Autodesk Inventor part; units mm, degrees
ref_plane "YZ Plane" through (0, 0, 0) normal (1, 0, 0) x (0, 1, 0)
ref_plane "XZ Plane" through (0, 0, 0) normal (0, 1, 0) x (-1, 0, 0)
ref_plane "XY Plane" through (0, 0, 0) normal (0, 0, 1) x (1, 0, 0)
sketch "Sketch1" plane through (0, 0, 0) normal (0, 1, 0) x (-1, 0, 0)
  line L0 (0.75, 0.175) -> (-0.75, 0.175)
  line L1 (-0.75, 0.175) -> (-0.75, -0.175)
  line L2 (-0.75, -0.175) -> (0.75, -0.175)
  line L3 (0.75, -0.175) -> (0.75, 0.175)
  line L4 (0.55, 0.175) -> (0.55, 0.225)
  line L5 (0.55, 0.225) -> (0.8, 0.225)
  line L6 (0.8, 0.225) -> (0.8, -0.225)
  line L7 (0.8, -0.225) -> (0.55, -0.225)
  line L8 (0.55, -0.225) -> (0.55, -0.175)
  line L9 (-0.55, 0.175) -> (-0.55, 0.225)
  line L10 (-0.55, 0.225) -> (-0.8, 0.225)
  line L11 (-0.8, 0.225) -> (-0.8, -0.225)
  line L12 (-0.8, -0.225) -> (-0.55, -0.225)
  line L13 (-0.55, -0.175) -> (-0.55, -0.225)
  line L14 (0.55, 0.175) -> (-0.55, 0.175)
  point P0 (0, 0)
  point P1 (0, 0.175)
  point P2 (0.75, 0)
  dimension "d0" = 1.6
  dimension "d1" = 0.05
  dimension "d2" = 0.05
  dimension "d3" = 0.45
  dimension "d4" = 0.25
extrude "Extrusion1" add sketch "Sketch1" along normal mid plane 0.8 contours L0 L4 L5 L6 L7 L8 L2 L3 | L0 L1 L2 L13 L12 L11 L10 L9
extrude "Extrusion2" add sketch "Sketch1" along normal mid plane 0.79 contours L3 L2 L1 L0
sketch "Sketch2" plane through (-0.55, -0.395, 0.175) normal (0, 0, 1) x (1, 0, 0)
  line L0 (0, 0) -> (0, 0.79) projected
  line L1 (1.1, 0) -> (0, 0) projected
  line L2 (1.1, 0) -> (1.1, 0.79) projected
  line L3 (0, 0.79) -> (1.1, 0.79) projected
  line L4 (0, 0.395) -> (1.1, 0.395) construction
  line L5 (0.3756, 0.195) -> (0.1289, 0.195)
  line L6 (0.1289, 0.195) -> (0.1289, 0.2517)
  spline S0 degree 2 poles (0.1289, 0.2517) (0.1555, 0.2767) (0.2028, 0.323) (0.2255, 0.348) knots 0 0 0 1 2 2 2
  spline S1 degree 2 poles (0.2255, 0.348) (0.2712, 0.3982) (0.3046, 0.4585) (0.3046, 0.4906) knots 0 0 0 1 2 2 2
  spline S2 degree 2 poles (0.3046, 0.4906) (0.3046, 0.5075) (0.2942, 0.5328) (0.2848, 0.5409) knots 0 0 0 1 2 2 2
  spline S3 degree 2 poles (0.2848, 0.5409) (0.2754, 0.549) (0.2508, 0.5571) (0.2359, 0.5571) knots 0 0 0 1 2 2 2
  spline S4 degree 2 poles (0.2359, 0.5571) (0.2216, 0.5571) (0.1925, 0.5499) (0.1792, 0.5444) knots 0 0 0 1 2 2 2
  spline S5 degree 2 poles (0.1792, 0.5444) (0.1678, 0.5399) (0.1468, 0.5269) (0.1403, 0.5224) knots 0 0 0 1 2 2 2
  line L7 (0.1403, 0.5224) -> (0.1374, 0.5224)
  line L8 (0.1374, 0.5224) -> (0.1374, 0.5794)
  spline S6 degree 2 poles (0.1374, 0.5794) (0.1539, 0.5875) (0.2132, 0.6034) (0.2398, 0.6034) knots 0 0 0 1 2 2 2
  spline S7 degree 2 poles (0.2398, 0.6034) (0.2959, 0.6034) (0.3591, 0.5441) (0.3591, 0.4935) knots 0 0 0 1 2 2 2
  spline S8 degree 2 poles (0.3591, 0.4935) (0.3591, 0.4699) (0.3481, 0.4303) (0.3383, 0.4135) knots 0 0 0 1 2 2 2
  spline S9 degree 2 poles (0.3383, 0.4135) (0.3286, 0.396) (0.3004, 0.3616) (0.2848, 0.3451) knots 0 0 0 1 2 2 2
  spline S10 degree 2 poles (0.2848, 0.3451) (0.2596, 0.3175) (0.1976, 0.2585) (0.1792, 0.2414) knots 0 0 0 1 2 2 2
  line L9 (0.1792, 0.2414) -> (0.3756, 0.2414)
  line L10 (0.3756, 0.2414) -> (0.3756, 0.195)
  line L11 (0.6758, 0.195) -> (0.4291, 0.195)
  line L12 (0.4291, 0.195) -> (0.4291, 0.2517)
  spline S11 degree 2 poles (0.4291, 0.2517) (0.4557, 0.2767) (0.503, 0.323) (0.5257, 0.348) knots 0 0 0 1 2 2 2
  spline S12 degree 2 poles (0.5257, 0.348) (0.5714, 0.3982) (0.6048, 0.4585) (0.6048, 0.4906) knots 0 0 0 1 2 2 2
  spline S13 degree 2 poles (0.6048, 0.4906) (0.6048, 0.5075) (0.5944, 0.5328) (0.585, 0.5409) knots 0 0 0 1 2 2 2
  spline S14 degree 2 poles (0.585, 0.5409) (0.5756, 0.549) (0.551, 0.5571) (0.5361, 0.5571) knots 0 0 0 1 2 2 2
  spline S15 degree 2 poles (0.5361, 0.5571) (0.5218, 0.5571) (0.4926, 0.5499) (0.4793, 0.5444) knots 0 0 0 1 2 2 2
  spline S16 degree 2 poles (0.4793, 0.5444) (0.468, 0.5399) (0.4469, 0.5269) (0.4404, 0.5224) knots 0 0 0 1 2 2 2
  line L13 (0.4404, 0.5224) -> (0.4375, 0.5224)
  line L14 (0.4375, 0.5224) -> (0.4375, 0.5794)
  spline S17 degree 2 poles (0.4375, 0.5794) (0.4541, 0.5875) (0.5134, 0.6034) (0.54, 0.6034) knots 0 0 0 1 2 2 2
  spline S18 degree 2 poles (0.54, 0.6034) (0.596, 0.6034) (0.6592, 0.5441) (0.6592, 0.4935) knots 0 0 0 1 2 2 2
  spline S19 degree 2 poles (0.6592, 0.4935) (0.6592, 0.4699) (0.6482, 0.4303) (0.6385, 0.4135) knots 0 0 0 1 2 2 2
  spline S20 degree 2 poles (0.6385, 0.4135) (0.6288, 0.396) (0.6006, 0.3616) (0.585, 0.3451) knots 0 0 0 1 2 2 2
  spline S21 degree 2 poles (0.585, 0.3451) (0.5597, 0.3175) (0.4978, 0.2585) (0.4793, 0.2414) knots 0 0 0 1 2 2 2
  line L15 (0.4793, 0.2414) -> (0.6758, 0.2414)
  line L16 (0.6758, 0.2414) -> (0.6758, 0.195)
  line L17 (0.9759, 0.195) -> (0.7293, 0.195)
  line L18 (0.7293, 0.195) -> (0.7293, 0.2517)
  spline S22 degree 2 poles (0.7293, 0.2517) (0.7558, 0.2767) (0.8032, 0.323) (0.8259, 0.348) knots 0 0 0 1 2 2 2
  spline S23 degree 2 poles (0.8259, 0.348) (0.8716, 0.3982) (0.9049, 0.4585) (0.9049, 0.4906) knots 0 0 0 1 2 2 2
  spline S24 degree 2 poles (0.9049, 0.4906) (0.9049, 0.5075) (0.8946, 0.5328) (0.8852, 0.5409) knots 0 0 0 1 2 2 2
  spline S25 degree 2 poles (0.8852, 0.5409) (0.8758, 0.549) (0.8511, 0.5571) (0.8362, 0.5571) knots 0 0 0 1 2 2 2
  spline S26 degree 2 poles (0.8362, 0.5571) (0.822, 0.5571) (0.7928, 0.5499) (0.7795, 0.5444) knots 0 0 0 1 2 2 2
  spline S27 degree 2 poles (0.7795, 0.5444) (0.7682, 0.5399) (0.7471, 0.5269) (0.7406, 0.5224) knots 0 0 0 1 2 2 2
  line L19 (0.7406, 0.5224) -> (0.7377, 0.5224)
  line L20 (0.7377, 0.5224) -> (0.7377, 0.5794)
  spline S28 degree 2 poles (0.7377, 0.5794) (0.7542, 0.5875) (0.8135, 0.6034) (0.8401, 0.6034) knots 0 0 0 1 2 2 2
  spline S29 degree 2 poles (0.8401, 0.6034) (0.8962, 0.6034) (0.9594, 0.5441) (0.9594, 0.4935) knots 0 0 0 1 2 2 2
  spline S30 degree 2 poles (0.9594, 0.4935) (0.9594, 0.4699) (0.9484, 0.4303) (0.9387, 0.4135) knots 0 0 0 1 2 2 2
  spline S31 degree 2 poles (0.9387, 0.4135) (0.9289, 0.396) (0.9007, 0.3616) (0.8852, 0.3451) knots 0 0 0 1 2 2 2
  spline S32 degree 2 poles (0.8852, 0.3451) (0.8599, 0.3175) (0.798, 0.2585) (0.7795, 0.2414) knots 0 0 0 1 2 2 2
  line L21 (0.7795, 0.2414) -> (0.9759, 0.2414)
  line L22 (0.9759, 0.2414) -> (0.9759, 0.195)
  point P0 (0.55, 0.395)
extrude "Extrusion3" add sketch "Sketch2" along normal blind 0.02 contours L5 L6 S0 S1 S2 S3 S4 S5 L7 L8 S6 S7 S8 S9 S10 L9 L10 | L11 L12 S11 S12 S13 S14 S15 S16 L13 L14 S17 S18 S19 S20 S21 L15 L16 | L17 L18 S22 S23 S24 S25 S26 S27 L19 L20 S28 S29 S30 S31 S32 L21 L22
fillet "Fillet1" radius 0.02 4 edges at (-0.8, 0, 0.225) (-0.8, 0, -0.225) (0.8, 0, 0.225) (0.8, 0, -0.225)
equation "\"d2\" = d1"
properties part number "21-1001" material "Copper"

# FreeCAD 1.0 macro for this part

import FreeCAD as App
import Part
import Sketcher
from FreeCAD import Vector


def edges_at(feature, points):
    """Names of the edges that pass closest to the given points."""
    edges = feature.Shape.Edges
    near = lambda p: min(range(len(edges)), key=lambda i: edges[i].distToShape(Part.Vertex(*p))[0])
    return sorted({f"Edge{near(p) + 1}" for p in points})


def add_polygon(sketch, points):
    """Adds a closed chain of lines whose ends are joined by coincident constraints."""
    first, n = sketch.GeometryCount, len(points)
    for a, b in zip(points, points[1:] + points[:1]):
        sketch.addGeometry(Part.LineSegment(App.Vector(*a, 0), App.Vector(*b, 0)), False)
    for i in range(n):
        sketch.addConstraint(Sketcher.Constraint("Coincident", first + i, 2, first + (i + 1) % n, 1))

doc = App.newDocument("Part")
body = doc.addObject("PartDesign::Body", "Body")
body.AllowCompound = True

# Sketch on XZ plane
sketch1 = body.newObject("Sketcher::SketchObject", "Sketch")
sketch1.AttachmentSupport = (doc.getObject("XZ_Plane"), [""])
sketch1.MapMode = "FlatFace"
add_polygon(sketch1, [(-0.55, 0.17), (-0.75, 0.17), (-0.75, -0.17), (-0.55, -0.17), (-0.55, -0.23), (-0.8, -0.23), (-0.8, 0.23), (-0.55, 0.23)])  # lines 0-7
add_polygon(sketch1, [(0.75, 0.17), (0.55, 0.17), (0.55, 0.23), (0.8, 0.23), (0.8, -0.23), (0.55, -0.23), (0.55, -0.17), (0.75, -0.17)])  # lines 8-15
sketch1.addConstraint(Sketcher.Constraint("Horizontal", 0))
sketch1.addConstraint(Sketcher.Constraint("Vertical", 1))
sketch1.addConstraint(Sketcher.Constraint("Horizontal", 2))
sketch1.addConstraint(Sketcher.Constraint("Vertical", 3))
sketch1.addConstraint(Sketcher.Constraint("Horizontal", 4))
sketch1.addConstraint(Sketcher.Constraint("Vertical", 5))
sketch1.addConstraint(Sketcher.Constraint("Horizontal", 6))
sketch1.addConstraint(Sketcher.Constraint("Vertical", 7))
sketch1.addConstraint(Sketcher.Constraint("Horizontal", 8))
sketch1.addConstraint(Sketcher.Constraint("Vertical", 9))
sketch1.addConstraint(Sketcher.Constraint("Horizontal", 10))
sketch1.addConstraint(Sketcher.Constraint("Vertical", 11))
sketch1.addConstraint(Sketcher.Constraint("Horizontal", 12))
sketch1.addConstraint(Sketcher.Constraint("Vertical", 13))
sketch1.addConstraint(Sketcher.Constraint("Horizontal", 14))
sketch1.addConstraint(Sketcher.Constraint("Vertical", 15))
sketch1.addConstraint(Sketcher.Constraint("Symmetric", 2, 2, 8, 2, -1, 1))
sketch1.addConstraint(Sketcher.Constraint("Symmetric", 4, 2, 10, 2, -1, 1))
sketch1.addConstraint(Sketcher.Constraint("Symmetric", 6, 2, 12, 2, -1, 1))
sketch1.addConstraint(Sketcher.Constraint("Symmetric", 0, 2, 14, 2, -1, 1))
sketch1.addConstraint(Sketcher.Constraint("Symmetric", 7, 2, 8, 2, -2))
sketch1.addConstraint(Sketcher.Constraint("Horizontal", 6, 2, 9, 2))
sketch1.addConstraint(Sketcher.Constraint("DistanceX", 4, 2, 4, 1, 0.25))
sketch1.addConstraint(Sketcher.Constraint("DistanceY", 3, 2, 3, 1, 0.05))
sketch1.addConstraint(Sketcher.Constraint("DistanceY", 5, 1, 5, 2, 0.45))
sketch1.addConstraint(Sketcher.Constraint("DistanceX", 4, 2, 1, 2, 0.05))
sketch1.addConstraint(Sketcher.Constraint("DistanceX", 4, 2, -1, 1, 0.8))
pad1 = body.newObject("PartDesign::Pad", "Pad")
pad1.Profile = sketch1
pad1.Length = 0.8
pad1.Midplane = True

# Sketch on XZ plane
sketch2 = body.newObject("Sketcher::SketchObject", "Sketch001")
sketch2.AttachmentSupport = (doc.getObject("XZ_Plane"), [""])
sketch2.MapMode = "FlatFace"
add_polygon(sketch2, [(-0.75, -0.17), (-0.75, 0.17), (0.75, 0.17), (0.75, -0.17)])  # lines 0-3
sketch2.addConstraint(Sketcher.Constraint("Vertical", 0))
sketch2.addConstraint(Sketcher.Constraint("Horizontal", 1))
sketch2.addConstraint(Sketcher.Constraint("Vertical", 2))
sketch2.addConstraint(Sketcher.Constraint("Horizontal", 3))
sketch2.addConstraint(Sketcher.Constraint("Symmetric", 0, 2, 2, 2, -1, 1))
sketch2.addConstraint(Sketcher.Constraint("DistanceX", 1, 1, 1, 2, 1.5))
sketch2.addConstraint(Sketcher.Constraint("DistanceY", 0, 1, 0, 2, 0.35))
pad2 = body.newObject("PartDesign::Pad", "Pad001")
pad2.Profile = sketch2
pad2.Length = 0.79
pad2.Midplane = True

# Sketch on XY plane
sketch3 = body.newObject("Sketcher::SketchObject", "Sketch002")
sketch3.AttachmentSupport = (doc.getObject("XY_Plane"), [""])
sketch3.MapMode = "FlatFace"
sketch3.AttachmentOffset = App.Placement(Vector(0, 0, 0.175), App.Rotation())
sketch3.addGeometry(Part.LineSegment(Vector(-0.4211, -0.2, 0), Vector(-0.1744, -0.2, 0)), False)
sketch3.addGeometry(Part.LineSegment(Vector(-0.1744, -0.2, 0), Vector(-0.1744, -0.1536, 0)), False)
sketch3.addGeometry(Part.LineSegment(Vector(-0.1744, -0.1536, 0), Vector(-0.3708, -0.1536, 0)), False)
sketch3.addGeometry(Part.BSplineCurve([Vector(-0.2652, -0.0499, 0), Vector(-0.2904, -0.0775, 0), Vector(-0.3524, -0.1365, 0), Vector(-0.3708, -0.1536, 0)], [3, 1, 3], [0, 1, 2], False, 2, [1, 1, 1, 1], False), False)
sketch3.addGeometry(Part.BSplineCurve([Vector(-0.2117, 0.0185, 0), Vector(-0.2214, 0.001, 0), Vector(-0.2496, -0.0334, 0), Vector(-0.2652, -0.0499, 0)], [3, 1, 3], [0, 1, 2], False, 2, [1, 1, 1, 1], False), False)
sketch3.addGeometry(Part.BSplineCurve([Vector(-0.1909, 0.0985, 0), Vector(-0.1909, 0.0749, 0), Vector(-0.2019, 0.0353, 0), Vector(-0.2117, 0.0185, 0)], [3, 1, 3], [0, 1, 2], False, 2, [1, 1, 1, 1], False), False)
sketch3.addGeometry(Part.BSplineCurve([Vector(-0.3102, 0.2084, 0), Vector(-0.2541, 0.2084, 0), Vector(-0.1909, 0.1491, 0), Vector(-0.1909, 0.0985, 0)], [3, 1, 3], [0, 1, 2], False, 2, [1, 1, 1, 1], False), False)
sketch3.addGeometry(Part.BSplineCurve([Vector(-0.4126, 0.1844, 0), Vector(-0.3961, 0.1925, 0), Vector(-0.3368, 0.2084, 0), Vector(-0.3102, 0.2084, 0)], [3, 1, 3], [0, 1, 2], False, 2, [1, 1, 1, 1], False), False)
sketch3.addGeometry(Part.LineSegment(Vector(-0.4126, 0.1844, 0), Vector(-0.4126, 0.1274, 0)), False)
sketch3.addGeometry(Part.LineSegment(Vector(-0.4126, 0.1274, 0), Vector(-0.4097, 0.1274, 0)), False)
sketch3.addGeometry(Part.BSplineCurve([Vector(-0.3708, 0.1494, 0), Vector(-0.3822, 0.1449, 0), Vector(-0.4032, 0.1319, 0), Vector(-0.4097, 0.1274, 0)], [3, 1, 3], [0, 1, 2], False, 2, [1, 1, 1, 1], False), False)
sketch3.addGeometry(Part.BSplineCurve([Vector(-0.3141, 0.1621, 0), Vector(-0.3284, 0.1621, 0), Vector(-0.3575, 0.1549, 0), Vector(-0.3708, 0.1494, 0)], [3, 1, 3], [0, 1, 2], False, 2, [1, 1, 1, 1], False), False)
sketch3.addGeometry(Part.BSplineCurve([Vector(-0.2652, 0.1459, 0), Vector(-0.2746, 0.154, 0), Vector(-0.2992, 0.1621, 0), Vector(-0.3141, 0.1621, 0)], [3, 1, 3], [0, 1, 2], False, 2, [1, 1, 1, 1], False), False)
sketch3.addGeometry(Part.BSplineCurve([Vector(-0.2454, 0.0956, 0), Vector(-0.2454, 0.1125, 0), Vector(-0.2558, 0.1378, 0), Vector(-0.2652, 0.1459, 0)], [3, 1, 3], [0, 1, 2], False, 2, [1, 1, 1, 1], False), False)
sketch3.addGeometry(Part.BSplineCurve([Vector(-0.3245, -0.047, 0), Vector(-0.2788, 0.0032, 0), Vector(-0.2454, 0.0635, 0), Vector(-0.2454, 0.0956, 0)], [3, 1, 3], [0, 1, 2], False, 2, [1, 1, 1, 1], False), False)
sketch3.addGeometry(Part.BSplineCurve([Vector(-0.4211, -0.1433, 0), Vector(-0.3945, -0.1183, 0), Vector(-0.3472, -0.072, 0), Vector(-0.3245, -0.047, 0)], [3, 1, 3], [0, 1, 2], False, 2, [1, 1, 1, 1], False), False)
sketch3.addGeometry(Part.LineSegment(Vector(-0.4211, -0.1433, 0), Vector(-0.4211, -0.2, 0)), False)
sketch3.addGeometry(Part.LineSegment(Vector(-0.1209, -0.2, 0), Vector(0.1258, -0.2, 0)), False)
sketch3.addGeometry(Part.LineSegment(Vector(0.1258, -0.2, 0), Vector(0.1258, -0.1536, 0)), False)
sketch3.addGeometry(Part.LineSegment(Vector(0.1258, -0.1536, 0), Vector(-0.0707, -0.1536, 0)), False)
sketch3.addGeometry(Part.BSplineCurve([Vector(0.035, -0.0499, 0), Vector(0.0097, -0.0775, 0), Vector(-0.0522, -0.1365, 0), Vector(-0.0707, -0.1536, 0)], [3, 1, 3], [0, 1, 2], False, 2, [1, 1, 1, 1], False), False)
sketch3.addGeometry(Part.BSplineCurve([Vector(0.0885, 0.0185, 0), Vector(0.0788, 0.001, 0), Vector(0.0506, -0.0334, 0), Vector(0.035, -0.0499, 0)], [3, 1, 3], [0, 1, 2], False, 2, [1, 1, 1, 1], False), False)
sketch3.addGeometry(Part.BSplineCurve([Vector(0.1092, 0.0985, 0), Vector(0.1092, 0.0749, 0), Vector(0.0982, 0.0353, 0), Vector(0.0885, 0.0185, 0)], [3, 1, 3], [0, 1, 2], False, 2, [1, 1, 1, 1], False), False)
sketch3.addGeometry(Part.BSplineCurve([Vector(-0.01, 0.2084, 0), Vector(0.046, 0.2084, 0), Vector(0.1092, 0.1491, 0), Vector(0.1092, 0.0985, 0)], [3, 1, 3], [0, 1, 2], False, 2, [1, 1, 1, 1], False), False)
sketch3.addGeometry(Part.BSplineCurve([Vector(-0.1125, 0.1844, 0), Vector(-0.0959, 0.1925, 0), Vector(-0.0366, 0.2084, 0), Vector(-0.01, 0.2084, 0)], [3, 1, 3], [0, 1, 2], False, 2, [1, 1, 1, 1], False), False)
sketch3.addGeometry(Part.LineSegment(Vector(-0.1125, 0.1844, 0), Vector(-0.1125, 0.1274, 0)), False)
sketch3.addGeometry(Part.LineSegment(Vector(-0.1125, 0.1274, 0), Vector(-0.1096, 0.1274, 0)), False)
sketch3.addGeometry(Part.BSplineCurve([Vector(-0.0707, 0.1494, 0), Vector(-0.082, 0.1449, 0), Vector(-0.1031, 0.1319, 0), Vector(-0.1096, 0.1274, 0)], [3, 1, 3], [0, 1, 2], False, 2, [1, 1, 1, 1], False), False)
sketch3.addGeometry(Part.BSplineCurve([Vector(-0.0139, 0.1621, 0), Vector(-0.0282, 0.1621, 0), Vector(-0.0574, 0.1549, 0), Vector(-0.0707, 0.1494, 0)], [3, 1, 3], [0, 1, 2], False, 2, [1, 1, 1, 1], False), False)
sketch3.addGeometry(Part.BSplineCurve([Vector(0.035, 0.1459, 0), Vector(0.0256, 0.154, 0), Vector(0.001, 0.1621, 0), Vector(-0.0139, 0.1621, 0)], [3, 1, 3], [0, 1, 2], False, 2, [1, 1, 1, 1], False), False)
sketch3.addGeometry(Part.BSplineCurve([Vector(0.0548, 0.0956, 0), Vector(0.0548, 0.1125, 0), Vector(0.0444, 0.1378, 0), Vector(0.035, 0.1459, 0)], [3, 1, 3], [0, 1, 2], False, 2, [1, 1, 1, 1], False), False)
sketch3.addGeometry(Part.BSplineCurve([Vector(-0.0243, -0.047, 0), Vector(0.0214, 0.0032, 0), Vector(0.0548, 0.0635, 0), Vector(0.0548, 0.0956, 0)], [3, 1, 3], [0, 1, 2], False, 2, [1, 1, 1, 1], False), False)
sketch3.addGeometry(Part.BSplineCurve([Vector(-0.1209, -0.1433, 0), Vector(-0.0943, -0.1183, 0), Vector(-0.047, -0.072, 0), Vector(-0.0243, -0.047, 0)], [3, 1, 3], [0, 1, 2], False, 2, [1, 1, 1, 1], False), False)
sketch3.addGeometry(Part.LineSegment(Vector(-0.1209, -0.1433, 0), Vector(-0.1209, -0.2, 0)), False)
sketch3.addGeometry(Part.LineSegment(Vector(0.1793, -0.2, 0), Vector(0.4259, -0.2, 0)), False)
sketch3.addGeometry(Part.LineSegment(Vector(0.4259, -0.2, 0), Vector(0.4259, -0.1536, 0)), False)
sketch3.addGeometry(Part.LineSegment(Vector(0.4259, -0.1536, 0), Vector(0.2295, -0.1536, 0)), False)
sketch3.addGeometry(Part.BSplineCurve([Vector(0.3352, -0.0499, 0), Vector(0.3099, -0.0775, 0), Vector(0.248, -0.1365, 0), Vector(0.2295, -0.1536, 0)], [3, 1, 3], [0, 1, 2], False, 2, [1, 1, 1, 1], False), False)
sketch3.addGeometry(Part.BSplineCurve([Vector(0.3887, 0.0185, 0), Vector(0.3789, 0.001, 0), Vector(0.3507, -0.0334, 0), Vector(0.3352, -0.0499, 0)], [3, 1, 3], [0, 1, 2], False, 2, [1, 1, 1, 1], False), False)
sketch3.addGeometry(Part.BSplineCurve([Vector(0.4094, 0.0985, 0), Vector(0.4094, 0.0749, 0), Vector(0.3984, 0.0353, 0), Vector(0.3887, 0.0185, 0)], [3, 1, 3], [0, 1, 2], False, 2, [1, 1, 1, 1], False), False)
sketch3.addGeometry(Part.BSplineCurve([Vector(0.2901, 0.2084, 0), Vector(0.3462, 0.2084, 0), Vector(0.4094, 0.1491, 0), Vector(0.4094, 0.0985, 0)], [3, 1, 3], [0, 1, 2], False, 2, [1, 1, 1, 1], False), False)
sketch3.addGeometry(Part.BSplineCurve([Vector(0.1877, 0.1844, 0), Vector(0.2042, 0.1925, 0), Vector(0.2635, 0.2084, 0), Vector(0.2901, 0.2084, 0)], [3, 1, 3], [0, 1, 2], False, 2, [1, 1, 1, 1], False), False)
sketch3.addGeometry(Part.LineSegment(Vector(0.1877, 0.1844, 0), Vector(0.1877, 0.1274, 0)), False)
sketch3.addGeometry(Part.LineSegment(Vector(0.1877, 0.1274, 0), Vector(0.1906, 0.1274, 0)), False)
sketch3.addGeometry(Part.BSplineCurve([Vector(0.2295, 0.1494, 0), Vector(0.2182, 0.1449, 0), Vector(0.1971, 0.1319, 0), Vector(0.1906, 0.1274, 0)], [3, 1, 3], [0, 1, 2], False, 2, [1, 1, 1, 1], False), False)
sketch3.addGeometry(Part.BSplineCurve([Vector(0.2862, 0.1621, 0), Vector(0.272, 0.1621, 0), Vector(0.2428, 0.1549, 0), Vector(0.2295, 0.1494, 0)], [3, 1, 3], [0, 1, 2], False, 2, [1, 1, 1, 1], False), False)
sketch3.addGeometry(Part.BSplineCurve([Vector(0.3352, 0.1459, 0), Vector(0.3258, 0.154, 0), Vector(0.3011, 0.1621, 0), Vector(0.2862, 0.1621, 0)], [3, 1, 3], [0, 1, 2], False, 2, [1, 1, 1, 1], False), False)
sketch3.addGeometry(Part.BSplineCurve([Vector(0.3549, 0.0956, 0), Vector(0.3549, 0.1125, 0), Vector(0.3446, 0.1378, 0), Vector(0.3352, 0.1459, 0)], [3, 1, 3], [0, 1, 2], False, 2, [1, 1, 1, 1], False), False)
sketch3.addGeometry(Part.BSplineCurve([Vector(0.2759, -0.047, 0), Vector(0.3216, 0.0032, 0), Vector(0.3549, 0.0635, 0), Vector(0.3549, 0.0956, 0)], [3, 1, 3], [0, 1, 2], False, 2, [1, 1, 1, 1], False), False)
sketch3.addGeometry(Part.BSplineCurve([Vector(0.1793, -0.1433, 0), Vector(0.2058, -0.1183, 0), Vector(0.2532, -0.072, 0), Vector(0.2759, -0.047, 0)], [3, 1, 3], [0, 1, 2], False, 2, [1, 1, 1, 1], False), False)
sketch3.addGeometry(Part.LineSegment(Vector(0.1793, -0.1433, 0), Vector(0.1793, -0.2, 0)), False)
sketch3.addConstraint(Sketcher.Constraint("Block", 3))
sketch3.addConstraint(Sketcher.Constraint("Block", 4))
sketch3.addConstraint(Sketcher.Constraint("Block", 5))
sketch3.addConstraint(Sketcher.Constraint("Block", 6))
sketch3.addConstraint(Sketcher.Constraint("Block", 7))
sketch3.addConstraint(Sketcher.Constraint("Block", 10))
sketch3.addConstraint(Sketcher.Constraint("Block", 11))
sketch3.addConstraint(Sketcher.Constraint("Block", 12))
sketch3.addConstraint(Sketcher.Constraint("Block", 13))
sketch3.addConstraint(Sketcher.Constraint("Block", 14))
sketch3.addConstraint(Sketcher.Constraint("Block", 15))
sketch3.addConstraint(Sketcher.Constraint("Block", 20))
sketch3.addConstraint(Sketcher.Constraint("Block", 21))
sketch3.addConstraint(Sketcher.Constraint("Block", 22))
sketch3.addConstraint(Sketcher.Constraint("Block", 23))
sketch3.addConstraint(Sketcher.Constraint("Block", 24))
sketch3.addConstraint(Sketcher.Constraint("Block", 27))
sketch3.addConstraint(Sketcher.Constraint("Block", 28))
sketch3.addConstraint(Sketcher.Constraint("Block", 29))
sketch3.addConstraint(Sketcher.Constraint("Block", 30))
sketch3.addConstraint(Sketcher.Constraint("Block", 31))
sketch3.addConstraint(Sketcher.Constraint("Block", 32))
sketch3.addConstraint(Sketcher.Constraint("Block", 37))
sketch3.addConstraint(Sketcher.Constraint("Block", 38))
sketch3.addConstraint(Sketcher.Constraint("Block", 39))
sketch3.addConstraint(Sketcher.Constraint("Block", 40))
sketch3.addConstraint(Sketcher.Constraint("Block", 41))
sketch3.addConstraint(Sketcher.Constraint("Block", 44))
sketch3.addConstraint(Sketcher.Constraint("Block", 45))
sketch3.addConstraint(Sketcher.Constraint("Block", 46))
sketch3.addConstraint(Sketcher.Constraint("Block", 47))
sketch3.addConstraint(Sketcher.Constraint("Block", 48))
sketch3.addConstraint(Sketcher.Constraint("Block", 49))
sketch3.addConstraint(Sketcher.Constraint("Coincident", 0, 2, 1, 1))
sketch3.addConstraint(Sketcher.Constraint("Coincident", 1, 2, 2, 1))
sketch3.addConstraint(Sketcher.Constraint("Coincident", 2, 2, 3, 2))
sketch3.addConstraint(Sketcher.Constraint("Coincident", 7, 1, 8, 1))
sketch3.addConstraint(Sketcher.Constraint("Coincident", 8, 2, 9, 1))
sketch3.addConstraint(Sketcher.Constraint("Coincident", 9, 2, 10, 2))
sketch3.addConstraint(Sketcher.Constraint("Coincident", 15, 1, 16, 1))
sketch3.addConstraint(Sketcher.Constraint("Coincident", 16, 2, 0, 1))
sketch3.addConstraint(Sketcher.Constraint("Coincident", 17, 2, 18, 1))
sketch3.addConstraint(Sketcher.Constraint("Coincident", 18, 2, 19, 1))
sketch3.addConstraint(Sketcher.Constraint("Coincident", 19, 2, 20, 2))
sketch3.addConstraint(Sketcher.Constraint("Coincident", 24, 1, 25, 1))
sketch3.addConstraint(Sketcher.Constraint("Coincident", 25, 2, 26, 1))
sketch3.addConstraint(Sketcher.Constraint("Coincident", 26, 2, 27, 2))
sketch3.addConstraint(Sketcher.Constraint("Coincident", 32, 1, 33, 1))
sketch3.addConstraint(Sketcher.Constraint("Coincident", 33, 2, 17, 1))
sketch3.addConstraint(Sketcher.Constraint("Coincident", 34, 2, 35, 1))
sketch3.addConstraint(Sketcher.Constraint("Coincident", 35, 2, 36, 1))
sketch3.addConstraint(Sketcher.Constraint("Coincident", 36, 2, 37, 2))
sketch3.addConstraint(Sketcher.Constraint("Coincident", 41, 1, 42, 1))
sketch3.addConstraint(Sketcher.Constraint("Coincident", 42, 2, 43, 1))
sketch3.addConstraint(Sketcher.Constraint("Coincident", 43, 2, 44, 2))
sketch3.addConstraint(Sketcher.Constraint("Coincident", 49, 1, 50, 1))
sketch3.addConstraint(Sketcher.Constraint("Coincident", 50, 2, 34, 1))
sketch3.addConstraint(Sketcher.Constraint("Horizontal", 0))
sketch3.addConstraint(Sketcher.Constraint("Vertical", 1))
sketch3.addConstraint(Sketcher.Constraint("Horizontal", 2))
sketch3.addConstraint(Sketcher.Constraint("Vertical", 8))
sketch3.addConstraint(Sketcher.Constraint("Horizontal", 9))
sketch3.addConstraint(Sketcher.Constraint("Vertical", 16))
sketch3.addConstraint(Sketcher.Constraint("Horizontal", 17))
sketch3.addConstraint(Sketcher.Constraint("Vertical", 18))
sketch3.addConstraint(Sketcher.Constraint("Horizontal", 19))
sketch3.addConstraint(Sketcher.Constraint("Vertical", 25))
sketch3.addConstraint(Sketcher.Constraint("Horizontal", 26))
sketch3.addConstraint(Sketcher.Constraint("Vertical", 33))
sketch3.addConstraint(Sketcher.Constraint("Horizontal", 34))
sketch3.addConstraint(Sketcher.Constraint("Vertical", 35))
sketch3.addConstraint(Sketcher.Constraint("Horizontal", 36))
sketch3.addConstraint(Sketcher.Constraint("Vertical", 42))
sketch3.addConstraint(Sketcher.Constraint("Horizontal", 43))
sketch3.addConstraint(Sketcher.Constraint("Vertical", 50))
sketch3.addConstraint(Sketcher.Constraint("Horizontal", 16, 2, 17, 2))
sketch3.addConstraint(Sketcher.Constraint("Horizontal", 33, 2, 34, 2))
sketch3.addConstraint(Sketcher.Constraint("Equal", 0, 17))
sketch3.addConstraint(Sketcher.Constraint("Equal", 17, 34))
sketch3.addConstraint(Sketcher.Constraint("DistanceY", 0, 2, -1, 1, 0.2))
sketch3.addConstraint(Sketcher.Constraint("DistanceX", 0, 1, 0, 2, 0.2467))
pad3 = body.newObject("PartDesign::Pad", "Pad002")
pad3.Profile = sketch3
pad3.Length = 0.02
doc.recompute()

fillet = body.newObject("PartDesign::Fillet", "Fillet")
fillet.Base = (pad3, edges_at(pad3, [
    (-0.8, 0, 0.225),
    (-0.8, 0, -0.225),
    (0.8, 0, 0.225),
    (0.8, 0, -0.225),
]))
fillet.Radius = 0.02

doc.recompute()
